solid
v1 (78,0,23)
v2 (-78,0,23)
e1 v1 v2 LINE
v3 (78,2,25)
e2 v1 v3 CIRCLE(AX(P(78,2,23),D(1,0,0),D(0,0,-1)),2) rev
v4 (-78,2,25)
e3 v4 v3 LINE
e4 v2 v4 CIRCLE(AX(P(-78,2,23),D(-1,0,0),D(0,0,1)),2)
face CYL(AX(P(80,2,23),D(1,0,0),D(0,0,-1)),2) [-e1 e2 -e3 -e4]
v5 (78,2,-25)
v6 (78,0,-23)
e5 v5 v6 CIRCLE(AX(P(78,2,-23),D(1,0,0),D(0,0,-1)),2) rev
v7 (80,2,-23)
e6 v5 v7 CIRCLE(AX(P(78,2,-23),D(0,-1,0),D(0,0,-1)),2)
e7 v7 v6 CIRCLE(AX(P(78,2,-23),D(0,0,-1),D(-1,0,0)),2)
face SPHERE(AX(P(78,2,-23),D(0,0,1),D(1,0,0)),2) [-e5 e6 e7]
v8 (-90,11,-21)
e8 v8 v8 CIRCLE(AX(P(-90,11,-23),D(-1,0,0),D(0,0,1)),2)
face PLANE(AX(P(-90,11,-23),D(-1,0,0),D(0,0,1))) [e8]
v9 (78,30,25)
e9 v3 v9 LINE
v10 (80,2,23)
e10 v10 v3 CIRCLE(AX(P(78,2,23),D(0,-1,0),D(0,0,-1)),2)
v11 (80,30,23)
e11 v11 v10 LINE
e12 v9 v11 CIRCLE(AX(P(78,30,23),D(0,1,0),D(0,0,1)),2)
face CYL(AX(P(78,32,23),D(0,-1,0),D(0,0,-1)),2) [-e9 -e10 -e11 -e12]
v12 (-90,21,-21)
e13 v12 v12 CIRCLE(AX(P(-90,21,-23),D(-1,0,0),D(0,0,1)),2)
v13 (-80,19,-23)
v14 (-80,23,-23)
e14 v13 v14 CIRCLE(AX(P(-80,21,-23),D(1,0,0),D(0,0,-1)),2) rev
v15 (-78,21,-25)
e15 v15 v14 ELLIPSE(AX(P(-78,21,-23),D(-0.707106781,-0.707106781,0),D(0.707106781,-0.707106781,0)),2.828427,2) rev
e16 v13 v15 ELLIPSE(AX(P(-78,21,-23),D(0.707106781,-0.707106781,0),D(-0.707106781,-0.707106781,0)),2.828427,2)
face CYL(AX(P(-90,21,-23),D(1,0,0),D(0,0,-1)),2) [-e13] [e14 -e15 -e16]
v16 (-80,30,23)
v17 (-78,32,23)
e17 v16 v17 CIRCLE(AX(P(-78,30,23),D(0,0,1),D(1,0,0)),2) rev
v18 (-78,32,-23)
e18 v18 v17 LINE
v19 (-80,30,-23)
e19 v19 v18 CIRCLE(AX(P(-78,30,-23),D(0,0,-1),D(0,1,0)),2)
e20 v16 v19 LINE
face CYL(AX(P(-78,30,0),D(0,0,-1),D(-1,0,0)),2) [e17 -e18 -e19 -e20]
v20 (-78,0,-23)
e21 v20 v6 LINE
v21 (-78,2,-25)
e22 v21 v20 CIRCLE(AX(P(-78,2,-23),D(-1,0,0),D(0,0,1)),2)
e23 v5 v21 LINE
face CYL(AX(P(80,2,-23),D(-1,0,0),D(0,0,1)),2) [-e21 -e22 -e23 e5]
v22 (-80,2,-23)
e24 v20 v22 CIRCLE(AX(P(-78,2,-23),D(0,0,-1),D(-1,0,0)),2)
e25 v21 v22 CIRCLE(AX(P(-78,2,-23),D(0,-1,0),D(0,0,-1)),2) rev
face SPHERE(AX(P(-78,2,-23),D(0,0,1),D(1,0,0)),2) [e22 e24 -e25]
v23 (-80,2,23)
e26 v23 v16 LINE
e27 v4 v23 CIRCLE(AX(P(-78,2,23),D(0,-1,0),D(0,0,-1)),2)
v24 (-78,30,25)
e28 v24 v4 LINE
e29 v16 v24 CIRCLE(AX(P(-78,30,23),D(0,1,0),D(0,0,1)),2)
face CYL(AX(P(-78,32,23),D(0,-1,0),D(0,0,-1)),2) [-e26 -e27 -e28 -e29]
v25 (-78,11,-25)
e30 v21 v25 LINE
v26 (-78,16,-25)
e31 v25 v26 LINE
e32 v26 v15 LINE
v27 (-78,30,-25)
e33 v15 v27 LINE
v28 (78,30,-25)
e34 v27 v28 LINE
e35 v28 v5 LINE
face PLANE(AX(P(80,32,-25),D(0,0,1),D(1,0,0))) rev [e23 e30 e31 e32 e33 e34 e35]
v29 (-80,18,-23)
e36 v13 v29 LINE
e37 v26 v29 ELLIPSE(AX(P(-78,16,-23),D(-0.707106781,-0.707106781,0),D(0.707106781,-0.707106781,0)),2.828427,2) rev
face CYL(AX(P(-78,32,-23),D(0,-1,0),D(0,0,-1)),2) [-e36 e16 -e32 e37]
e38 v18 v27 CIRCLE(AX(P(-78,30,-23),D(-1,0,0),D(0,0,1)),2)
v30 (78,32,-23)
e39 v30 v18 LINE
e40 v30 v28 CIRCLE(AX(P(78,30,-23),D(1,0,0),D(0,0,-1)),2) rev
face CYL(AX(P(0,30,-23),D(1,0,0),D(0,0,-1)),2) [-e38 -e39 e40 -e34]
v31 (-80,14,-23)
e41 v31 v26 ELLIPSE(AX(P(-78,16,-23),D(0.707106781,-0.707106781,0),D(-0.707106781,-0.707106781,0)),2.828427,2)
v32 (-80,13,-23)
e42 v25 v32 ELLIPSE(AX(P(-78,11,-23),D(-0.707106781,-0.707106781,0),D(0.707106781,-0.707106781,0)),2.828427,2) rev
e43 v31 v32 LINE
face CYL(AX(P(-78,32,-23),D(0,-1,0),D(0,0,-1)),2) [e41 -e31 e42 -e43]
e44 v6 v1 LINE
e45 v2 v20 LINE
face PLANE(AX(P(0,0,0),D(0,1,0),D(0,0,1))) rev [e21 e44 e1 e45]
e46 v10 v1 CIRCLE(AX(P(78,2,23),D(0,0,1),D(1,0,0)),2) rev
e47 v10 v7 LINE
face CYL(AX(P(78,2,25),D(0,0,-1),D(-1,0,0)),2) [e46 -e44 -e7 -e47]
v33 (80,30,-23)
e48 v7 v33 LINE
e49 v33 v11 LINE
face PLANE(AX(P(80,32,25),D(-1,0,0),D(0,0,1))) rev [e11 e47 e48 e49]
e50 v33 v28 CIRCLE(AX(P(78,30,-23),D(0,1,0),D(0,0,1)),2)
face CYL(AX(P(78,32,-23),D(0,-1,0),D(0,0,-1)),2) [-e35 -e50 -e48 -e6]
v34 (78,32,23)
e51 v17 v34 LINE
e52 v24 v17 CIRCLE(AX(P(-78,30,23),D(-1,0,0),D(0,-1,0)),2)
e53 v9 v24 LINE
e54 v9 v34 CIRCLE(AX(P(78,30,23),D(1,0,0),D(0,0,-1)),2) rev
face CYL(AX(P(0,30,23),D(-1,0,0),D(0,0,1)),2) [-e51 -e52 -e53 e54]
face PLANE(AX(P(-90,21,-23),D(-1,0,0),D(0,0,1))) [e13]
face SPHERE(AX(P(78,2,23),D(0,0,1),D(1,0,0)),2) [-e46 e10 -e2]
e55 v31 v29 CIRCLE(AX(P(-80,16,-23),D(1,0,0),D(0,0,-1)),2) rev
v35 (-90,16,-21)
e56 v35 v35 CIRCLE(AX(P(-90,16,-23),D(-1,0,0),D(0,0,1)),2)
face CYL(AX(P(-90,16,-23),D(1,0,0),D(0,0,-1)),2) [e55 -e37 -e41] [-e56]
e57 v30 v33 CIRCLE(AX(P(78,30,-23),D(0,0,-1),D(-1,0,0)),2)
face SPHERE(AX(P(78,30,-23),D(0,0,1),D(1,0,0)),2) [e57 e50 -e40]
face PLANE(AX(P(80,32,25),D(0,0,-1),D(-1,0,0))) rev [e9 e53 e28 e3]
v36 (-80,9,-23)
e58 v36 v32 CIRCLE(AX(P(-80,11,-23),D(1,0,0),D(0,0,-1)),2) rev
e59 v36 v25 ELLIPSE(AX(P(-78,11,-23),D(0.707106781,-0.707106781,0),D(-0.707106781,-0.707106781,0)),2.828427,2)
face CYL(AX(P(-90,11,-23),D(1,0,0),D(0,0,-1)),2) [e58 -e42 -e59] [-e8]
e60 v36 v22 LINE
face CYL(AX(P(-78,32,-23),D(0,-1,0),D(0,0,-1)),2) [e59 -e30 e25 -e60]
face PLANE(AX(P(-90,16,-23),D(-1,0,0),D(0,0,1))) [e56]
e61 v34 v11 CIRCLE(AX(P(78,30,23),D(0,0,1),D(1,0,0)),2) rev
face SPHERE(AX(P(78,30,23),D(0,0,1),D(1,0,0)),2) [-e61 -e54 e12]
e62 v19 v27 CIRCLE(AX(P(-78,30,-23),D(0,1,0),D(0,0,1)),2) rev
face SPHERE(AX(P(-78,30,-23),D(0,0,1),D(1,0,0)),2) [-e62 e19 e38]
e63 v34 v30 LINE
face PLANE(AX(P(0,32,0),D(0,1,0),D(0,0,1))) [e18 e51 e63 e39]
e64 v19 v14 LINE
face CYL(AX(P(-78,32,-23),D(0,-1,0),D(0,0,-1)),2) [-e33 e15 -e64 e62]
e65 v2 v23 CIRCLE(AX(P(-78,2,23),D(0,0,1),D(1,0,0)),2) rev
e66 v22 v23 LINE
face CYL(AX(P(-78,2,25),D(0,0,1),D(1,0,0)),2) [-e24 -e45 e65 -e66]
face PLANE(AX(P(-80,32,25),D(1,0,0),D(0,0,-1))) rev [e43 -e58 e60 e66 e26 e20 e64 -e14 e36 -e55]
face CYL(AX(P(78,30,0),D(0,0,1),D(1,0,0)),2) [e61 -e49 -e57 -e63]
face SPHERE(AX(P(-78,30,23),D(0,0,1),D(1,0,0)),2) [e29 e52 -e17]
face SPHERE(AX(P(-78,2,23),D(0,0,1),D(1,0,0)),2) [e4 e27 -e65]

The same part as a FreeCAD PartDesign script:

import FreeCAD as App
import Part
import Sketcher

V = App.Vector
Q = App.Units.Quantity

doc = App.newDocument("Part")
params = doc.addObject("Spreadsheet::Sheet", "Params")
for row, (alias, value) in enumerate([
    ("sketch1_width", "160 mm"),
    ("sketch1_height", "50 mm"),
    ("pad1_length", "32 mm"),
    ("fillet_radius", "2 mm"),
    ("sketch2_diameter", "4 mm"),
    ("pad2_length", "20 mm"),
], start=1):
    params.set(f"A{row}", alias)
    params.set(f"B{row}", "=" + value)
    params.setAlias(f"B{row}", alias)

body = doc.addObject("PartDesign::Body", "Body")

# Sketch on XZ plane
sketch1 = body.newObject("Sketcher::SketchObject", "Sketch")
sketch1.AttachmentSupport = (doc.getObject("XZ_Plane"), [""])
sketch1.MapMode = "FlatFace"
sketch1.addGeometry([
    Part.LineSegment(V(-80, -25, 0), V(-80, 25, 0)),
    Part.LineSegment(V(-80, 25, 0), V(80, 25, 0)),
    Part.LineSegment(V(80, 25, 0), V(80, -25, 0)),
    Part.LineSegment(V(80, -25, 0), V(-80, -25, 0)),
], False)
sketch1.addConstraint([
    Sketcher.Constraint("Coincident", 0, 2, 1, 1),
    Sketcher.Constraint("Coincident", 1, 2, 2, 1),
    Sketcher.Constraint("Coincident", 2, 2, 3, 1),
    Sketcher.Constraint("Coincident", 3, 2, 0, 1),
    Sketcher.Constraint("Vertical", 0),
    Sketcher.Constraint("Horizontal", 1),
    Sketcher.Constraint("Vertical", 2),
    Sketcher.Constraint("Horizontal", 3),
    Sketcher.Constraint("Symmetric", 0, 2, 2, 2, -1, 1),
    Sketcher.Constraint("DistanceX", 1, 1, 1, 2, Q("160 mm")),
    Sketcher.Constraint("DistanceY", 0, 1, 0, 2, Q("50 mm")),
])
sketch1.setExpression("Constraints[9]", "Params.sketch1_width")
sketch1.setExpression("Constraints[10]", "Params.sketch1_height")
pad1 = body.newObject("PartDesign::Pad", "Pad")
pad1.Profile = sketch1
pad1.setExpression("Length", "Params.pad1_length")
pad1.Reversed = True
doc.recompute()

fillet = body.newObject("PartDesign::Fillet", "Fillet")
fillet.Base = (pad1, ["Edge1"])
fillet.UseAllEdges = True
fillet.setExpression("Radius", "Params.fillet_radius")

# Sketch on YZ plane
sketch2 = body.newObject("Sketcher::SketchObject", "Sketch001")
sketch2.AttachmentSupport = (doc.getObject("YZ_Plane"), [""])
sketch2.MapMode = "FlatFace"
sketch2.AttachmentOffset = App.Placement(V(0, 0, -80), App.Rotation())
sketch2.addGeometry([
    Part.Circle(V(21, -23, 0), V(0, 0, 1), 2),
    Part.Circle(V(16, -23, 0), V(0, 0, 1), 2),
    Part.Circle(V(11, -23, 0), V(0, 0, 1), 2),
], False)
sketch2.addConstraint([
    Sketcher.Constraint("Equal", 0, 1),
    Sketcher.Constraint("Equal", 1, 2),
    Sketcher.Constraint("Horizontal", 0, 3, 1, 3),
    Sketcher.Constraint("Horizontal", 1, 3, 2, 3),
    Sketcher.Constraint("Diameter", 0, Q("4 mm")),
    Sketcher.Constraint("DistanceX", -1, 1, 0, 3, Q("21 mm")),
    Sketcher.Constraint("DistanceY", 0, 3, -1, 1, Q("23 mm")),
    Sketcher.Constraint("DistanceX", -1, 1, 1, 3, Q("16 mm")),
    Sketcher.Constraint("DistanceX", -1, 1, 2, 3, Q("11 mm")),
])
sketch2.setExpression("Constraints[4]", "Params.sketch2_diameter")
pad2 = body.newObject("PartDesign::Pad", "Pad001")
pad2.Profile = sketch2
pad2.setExpression("Length", "Params.pad2_length")
pad2.Midplane = True

doc.recompute()
